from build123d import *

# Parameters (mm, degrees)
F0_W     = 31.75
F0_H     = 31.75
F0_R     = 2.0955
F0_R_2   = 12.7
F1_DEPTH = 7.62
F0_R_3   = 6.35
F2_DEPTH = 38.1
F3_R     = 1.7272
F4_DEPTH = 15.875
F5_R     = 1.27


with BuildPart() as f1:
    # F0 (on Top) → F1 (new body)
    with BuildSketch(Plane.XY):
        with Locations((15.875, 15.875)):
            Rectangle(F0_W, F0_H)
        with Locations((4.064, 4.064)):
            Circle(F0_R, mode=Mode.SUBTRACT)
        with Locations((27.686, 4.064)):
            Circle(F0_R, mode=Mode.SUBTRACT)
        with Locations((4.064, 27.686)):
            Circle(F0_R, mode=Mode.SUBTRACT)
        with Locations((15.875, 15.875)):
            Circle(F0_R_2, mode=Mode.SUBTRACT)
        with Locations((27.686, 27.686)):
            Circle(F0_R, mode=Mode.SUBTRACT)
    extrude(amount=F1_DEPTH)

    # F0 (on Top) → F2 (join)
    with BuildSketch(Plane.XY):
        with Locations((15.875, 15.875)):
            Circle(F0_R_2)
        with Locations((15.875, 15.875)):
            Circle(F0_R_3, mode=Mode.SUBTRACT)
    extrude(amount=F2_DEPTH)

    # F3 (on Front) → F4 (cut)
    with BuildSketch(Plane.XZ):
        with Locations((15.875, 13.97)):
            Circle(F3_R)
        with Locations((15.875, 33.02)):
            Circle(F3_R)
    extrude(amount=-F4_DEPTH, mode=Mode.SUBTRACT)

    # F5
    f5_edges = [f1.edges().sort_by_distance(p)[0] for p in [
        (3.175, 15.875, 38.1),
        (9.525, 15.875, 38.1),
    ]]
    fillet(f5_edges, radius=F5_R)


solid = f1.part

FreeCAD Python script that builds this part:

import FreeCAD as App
import Part
import Sketcher
from FreeCAD import Vector
Q = App.Units.Quantity


def edges_at(feature, points):
    """Names of the edges that pass closest to the given points."""
    edges = feature.Shape.Edges
    near = lambda p: min(range(len(edges)), key=lambda i: edges[i].distToShape(Part.Vertex(*p))[0])
    return sorted({f"Edge{near(p) + 1}" for p in points})

doc = App.newDocument("Part")
body = doc.addObject("PartDesign::Body", "Body")

# Sketch on XY plane
sketch1 = doc.addObject("Sketcher::SketchObject", "Sketch")
body.addObject(sketch1)
sketch1.AttachmentSupport = (doc.XY_Plane, [""])
sketch1.MapMode = "FlatFace"
sketch1.addGeometry([
    Part.LineSegment(Vector(0, 31.75, 0), Vector(0, 0, 0)),  # 0
    Part.LineSegment(Vector(0, 0, 0), Vector(31.75, 0, 0)),  # 1
    Part.LineSegment(Vector(31.75, 0, 0), Vector(31.75, 31.75, 0)),  # 2
    Part.LineSegment(Vector(31.75, 31.75, 0), Vector(0, 31.75, 0)),  # 3
    Part.Circle(Vector(4.064, 4.064, 0), Vector(0, 0, 1), 2.0955),  # 4
    Part.Circle(Vector(15.875, 15.875, 0), Vector(0, 0, 1), 12.7),  # 5
    Part.Circle(Vector(27.686, 4.064, 0), Vector(0, 0, 1), 2.0955),  # 6
    Part.Circle(Vector(4.064, 27.686, 0), Vector(0, 0, 1), 2.0955),  # 7
    Part.Circle(Vector(27.686, 27.686, 0), Vector(0, 0, 1), 2.0955),  # 8
], False)
sketch1.addConstraint([
    Sketcher.Constraint("Coincident", 0, 2, 1, 1),
    Sketcher.Constraint("Coincident", 1, 2, 2, 1),
    Sketcher.Constraint("Coincident", 2, 2, 3, 1),
    Sketcher.Constraint("Coincident", 3, 2, 0, 1),
    Sketcher.Constraint("Vertical", 0),
    Sketcher.Constraint("Horizontal", 1),
    Sketcher.Constraint("Vertical", 2),
    Sketcher.Constraint("Horizontal", 3),
    Sketcher.Constraint("Coincident", 0, 2, -1, 1),
    Sketcher.Constraint("Equal", 4, 6),
    Sketcher.Constraint("Equal", 6, 7),
    Sketcher.Constraint("Equal", 7, 8),
    Sketcher.Constraint("Horizontal", 4, 3, 6, 3),
    Sketcher.Constraint("Horizontal", 7, 3, 8, 3),
    Sketcher.Constraint("Vertical", 4, 3, 7, 3),
    Sketcher.Constraint("Vertical", 6, 3, 8, 3),
    Sketcher.Constraint("Equal", 3, 0),
    Sketcher.Constraint("Diameter", 5, Q("1 in")),
    Sketcher.Constraint("Diameter", 4, Q("0.165 in")),
    Sketcher.Constraint("DistanceX", 1, 1, 1, 2, Q("1.25 in")),
    Sketcher.Constraint("DistanceX", -1, 1, 4, 3, Q("0.16 in")),
    Sketcher.Constraint("DistanceY", -1, 1, 4, 3, Q("0.16 in")),
    Sketcher.Constraint("DistanceX", -1, 1, 6, 3, Q("1.09 in")),
    Sketcher.Constraint("DistanceY", -1, 1, 7, 3, Q("1.09 in")),
    Sketcher.Constraint("DistanceX", -1, 1, 5, 3, Q("0.625 in")),
    Sketcher.Constraint("DistanceY", -1, 1, 5, 3, Q("0.625 in")),
])
pad1 = doc.addObject("PartDesign::Pad", "Pad")
body.addObject(pad1)
pad1.Profile = sketch1
pad1.Length = Q("0.3 in")

# Sketch on XY plane
sketch2 = doc.addObject("Sketcher::SketchObject", "Sketch001")
body.addObject(sketch2)
sketch2.AttachmentSupport = (doc.XY_Plane, [""])
sketch2.MapMode = "FlatFace"
sketch2.addGeometry([
    Part.Circle(Vector(15.875, 15.875, 0), Vector(0, 0, 1), 12.7),
    Part.Circle(Vector(15.875, 15.875, 0), Vector(0, 0, 1), 6.35),
], False)
sketch2.addConstraint([
    Sketcher.Constraint("Coincident", 1, 3, 0, 3),
    Sketcher.Constraint("Diameter", 0, Q("1 in")),
    Sketcher.Constraint("Diameter", 1, Q("0.5 in")),
    Sketcher.Constraint("DistanceX", -1, 1, 0, 3, Q("0.625 in")),
    Sketcher.Constraint("DistanceY", -1, 1, 0, 3, Q("0.625 in")),
])
pad2 = doc.addObject("PartDesign::Pad", "Pad001")
body.addObject(pad2)
pad2.Profile = sketch2
pad2.Length = Q("1.5 in")

# Sketch on XZ plane
sketch3 = doc.addObject("Sketcher::SketchObject", "Sketch002")
body.addObject(sketch3)
sketch3.AttachmentSupport = (doc.XZ_Plane, [""])
sketch3.MapMode = "FlatFace"
sketch3.addGeometry([
    Part.Circle(Vector(15.875, 13.97, 0), Vector(0, 0, 1), 1.7272),
    Part.Circle(Vector(15.875, 33.02, 0), Vector(0, 0, 1), 1.7272),
], False)
sketch3.addConstraint([
    Sketcher.Constraint("Equal", 0, 1),
    Sketcher.Constraint("Vertical", 0, 3, 1, 3),
    Sketcher.Constraint("Diameter", 0, Q("0.136 in")),
    Sketcher.Constraint("DistanceY", -1, 1, 1, 3, Q("1.3 in")),
    Sketcher.Constraint("DistanceY", -1, 1, 0, 3, Q("0.55 in")),
    Sketcher.Constraint("DistanceX", -1, 1, 0, 3, Q("0.625 in")),
])
pocket1 = doc.addObject("PartDesign::Pocket", "Pocket")
body.addObject(pocket1)
pocket1.Profile = sketch3
pocket1.Length = Q("0.625 in")
doc.recompute()

fillet = doc.addObject("PartDesign::Fillet", "Fillet")
body.addObject(fillet)
fillet.Base = (pocket1, edges_at(pocket1, [(3.175, 15.875, 38.1), (9.525, 15.875, 38.1)]))
fillet.Radius = Q("0.05 in")

doc.recompute()
